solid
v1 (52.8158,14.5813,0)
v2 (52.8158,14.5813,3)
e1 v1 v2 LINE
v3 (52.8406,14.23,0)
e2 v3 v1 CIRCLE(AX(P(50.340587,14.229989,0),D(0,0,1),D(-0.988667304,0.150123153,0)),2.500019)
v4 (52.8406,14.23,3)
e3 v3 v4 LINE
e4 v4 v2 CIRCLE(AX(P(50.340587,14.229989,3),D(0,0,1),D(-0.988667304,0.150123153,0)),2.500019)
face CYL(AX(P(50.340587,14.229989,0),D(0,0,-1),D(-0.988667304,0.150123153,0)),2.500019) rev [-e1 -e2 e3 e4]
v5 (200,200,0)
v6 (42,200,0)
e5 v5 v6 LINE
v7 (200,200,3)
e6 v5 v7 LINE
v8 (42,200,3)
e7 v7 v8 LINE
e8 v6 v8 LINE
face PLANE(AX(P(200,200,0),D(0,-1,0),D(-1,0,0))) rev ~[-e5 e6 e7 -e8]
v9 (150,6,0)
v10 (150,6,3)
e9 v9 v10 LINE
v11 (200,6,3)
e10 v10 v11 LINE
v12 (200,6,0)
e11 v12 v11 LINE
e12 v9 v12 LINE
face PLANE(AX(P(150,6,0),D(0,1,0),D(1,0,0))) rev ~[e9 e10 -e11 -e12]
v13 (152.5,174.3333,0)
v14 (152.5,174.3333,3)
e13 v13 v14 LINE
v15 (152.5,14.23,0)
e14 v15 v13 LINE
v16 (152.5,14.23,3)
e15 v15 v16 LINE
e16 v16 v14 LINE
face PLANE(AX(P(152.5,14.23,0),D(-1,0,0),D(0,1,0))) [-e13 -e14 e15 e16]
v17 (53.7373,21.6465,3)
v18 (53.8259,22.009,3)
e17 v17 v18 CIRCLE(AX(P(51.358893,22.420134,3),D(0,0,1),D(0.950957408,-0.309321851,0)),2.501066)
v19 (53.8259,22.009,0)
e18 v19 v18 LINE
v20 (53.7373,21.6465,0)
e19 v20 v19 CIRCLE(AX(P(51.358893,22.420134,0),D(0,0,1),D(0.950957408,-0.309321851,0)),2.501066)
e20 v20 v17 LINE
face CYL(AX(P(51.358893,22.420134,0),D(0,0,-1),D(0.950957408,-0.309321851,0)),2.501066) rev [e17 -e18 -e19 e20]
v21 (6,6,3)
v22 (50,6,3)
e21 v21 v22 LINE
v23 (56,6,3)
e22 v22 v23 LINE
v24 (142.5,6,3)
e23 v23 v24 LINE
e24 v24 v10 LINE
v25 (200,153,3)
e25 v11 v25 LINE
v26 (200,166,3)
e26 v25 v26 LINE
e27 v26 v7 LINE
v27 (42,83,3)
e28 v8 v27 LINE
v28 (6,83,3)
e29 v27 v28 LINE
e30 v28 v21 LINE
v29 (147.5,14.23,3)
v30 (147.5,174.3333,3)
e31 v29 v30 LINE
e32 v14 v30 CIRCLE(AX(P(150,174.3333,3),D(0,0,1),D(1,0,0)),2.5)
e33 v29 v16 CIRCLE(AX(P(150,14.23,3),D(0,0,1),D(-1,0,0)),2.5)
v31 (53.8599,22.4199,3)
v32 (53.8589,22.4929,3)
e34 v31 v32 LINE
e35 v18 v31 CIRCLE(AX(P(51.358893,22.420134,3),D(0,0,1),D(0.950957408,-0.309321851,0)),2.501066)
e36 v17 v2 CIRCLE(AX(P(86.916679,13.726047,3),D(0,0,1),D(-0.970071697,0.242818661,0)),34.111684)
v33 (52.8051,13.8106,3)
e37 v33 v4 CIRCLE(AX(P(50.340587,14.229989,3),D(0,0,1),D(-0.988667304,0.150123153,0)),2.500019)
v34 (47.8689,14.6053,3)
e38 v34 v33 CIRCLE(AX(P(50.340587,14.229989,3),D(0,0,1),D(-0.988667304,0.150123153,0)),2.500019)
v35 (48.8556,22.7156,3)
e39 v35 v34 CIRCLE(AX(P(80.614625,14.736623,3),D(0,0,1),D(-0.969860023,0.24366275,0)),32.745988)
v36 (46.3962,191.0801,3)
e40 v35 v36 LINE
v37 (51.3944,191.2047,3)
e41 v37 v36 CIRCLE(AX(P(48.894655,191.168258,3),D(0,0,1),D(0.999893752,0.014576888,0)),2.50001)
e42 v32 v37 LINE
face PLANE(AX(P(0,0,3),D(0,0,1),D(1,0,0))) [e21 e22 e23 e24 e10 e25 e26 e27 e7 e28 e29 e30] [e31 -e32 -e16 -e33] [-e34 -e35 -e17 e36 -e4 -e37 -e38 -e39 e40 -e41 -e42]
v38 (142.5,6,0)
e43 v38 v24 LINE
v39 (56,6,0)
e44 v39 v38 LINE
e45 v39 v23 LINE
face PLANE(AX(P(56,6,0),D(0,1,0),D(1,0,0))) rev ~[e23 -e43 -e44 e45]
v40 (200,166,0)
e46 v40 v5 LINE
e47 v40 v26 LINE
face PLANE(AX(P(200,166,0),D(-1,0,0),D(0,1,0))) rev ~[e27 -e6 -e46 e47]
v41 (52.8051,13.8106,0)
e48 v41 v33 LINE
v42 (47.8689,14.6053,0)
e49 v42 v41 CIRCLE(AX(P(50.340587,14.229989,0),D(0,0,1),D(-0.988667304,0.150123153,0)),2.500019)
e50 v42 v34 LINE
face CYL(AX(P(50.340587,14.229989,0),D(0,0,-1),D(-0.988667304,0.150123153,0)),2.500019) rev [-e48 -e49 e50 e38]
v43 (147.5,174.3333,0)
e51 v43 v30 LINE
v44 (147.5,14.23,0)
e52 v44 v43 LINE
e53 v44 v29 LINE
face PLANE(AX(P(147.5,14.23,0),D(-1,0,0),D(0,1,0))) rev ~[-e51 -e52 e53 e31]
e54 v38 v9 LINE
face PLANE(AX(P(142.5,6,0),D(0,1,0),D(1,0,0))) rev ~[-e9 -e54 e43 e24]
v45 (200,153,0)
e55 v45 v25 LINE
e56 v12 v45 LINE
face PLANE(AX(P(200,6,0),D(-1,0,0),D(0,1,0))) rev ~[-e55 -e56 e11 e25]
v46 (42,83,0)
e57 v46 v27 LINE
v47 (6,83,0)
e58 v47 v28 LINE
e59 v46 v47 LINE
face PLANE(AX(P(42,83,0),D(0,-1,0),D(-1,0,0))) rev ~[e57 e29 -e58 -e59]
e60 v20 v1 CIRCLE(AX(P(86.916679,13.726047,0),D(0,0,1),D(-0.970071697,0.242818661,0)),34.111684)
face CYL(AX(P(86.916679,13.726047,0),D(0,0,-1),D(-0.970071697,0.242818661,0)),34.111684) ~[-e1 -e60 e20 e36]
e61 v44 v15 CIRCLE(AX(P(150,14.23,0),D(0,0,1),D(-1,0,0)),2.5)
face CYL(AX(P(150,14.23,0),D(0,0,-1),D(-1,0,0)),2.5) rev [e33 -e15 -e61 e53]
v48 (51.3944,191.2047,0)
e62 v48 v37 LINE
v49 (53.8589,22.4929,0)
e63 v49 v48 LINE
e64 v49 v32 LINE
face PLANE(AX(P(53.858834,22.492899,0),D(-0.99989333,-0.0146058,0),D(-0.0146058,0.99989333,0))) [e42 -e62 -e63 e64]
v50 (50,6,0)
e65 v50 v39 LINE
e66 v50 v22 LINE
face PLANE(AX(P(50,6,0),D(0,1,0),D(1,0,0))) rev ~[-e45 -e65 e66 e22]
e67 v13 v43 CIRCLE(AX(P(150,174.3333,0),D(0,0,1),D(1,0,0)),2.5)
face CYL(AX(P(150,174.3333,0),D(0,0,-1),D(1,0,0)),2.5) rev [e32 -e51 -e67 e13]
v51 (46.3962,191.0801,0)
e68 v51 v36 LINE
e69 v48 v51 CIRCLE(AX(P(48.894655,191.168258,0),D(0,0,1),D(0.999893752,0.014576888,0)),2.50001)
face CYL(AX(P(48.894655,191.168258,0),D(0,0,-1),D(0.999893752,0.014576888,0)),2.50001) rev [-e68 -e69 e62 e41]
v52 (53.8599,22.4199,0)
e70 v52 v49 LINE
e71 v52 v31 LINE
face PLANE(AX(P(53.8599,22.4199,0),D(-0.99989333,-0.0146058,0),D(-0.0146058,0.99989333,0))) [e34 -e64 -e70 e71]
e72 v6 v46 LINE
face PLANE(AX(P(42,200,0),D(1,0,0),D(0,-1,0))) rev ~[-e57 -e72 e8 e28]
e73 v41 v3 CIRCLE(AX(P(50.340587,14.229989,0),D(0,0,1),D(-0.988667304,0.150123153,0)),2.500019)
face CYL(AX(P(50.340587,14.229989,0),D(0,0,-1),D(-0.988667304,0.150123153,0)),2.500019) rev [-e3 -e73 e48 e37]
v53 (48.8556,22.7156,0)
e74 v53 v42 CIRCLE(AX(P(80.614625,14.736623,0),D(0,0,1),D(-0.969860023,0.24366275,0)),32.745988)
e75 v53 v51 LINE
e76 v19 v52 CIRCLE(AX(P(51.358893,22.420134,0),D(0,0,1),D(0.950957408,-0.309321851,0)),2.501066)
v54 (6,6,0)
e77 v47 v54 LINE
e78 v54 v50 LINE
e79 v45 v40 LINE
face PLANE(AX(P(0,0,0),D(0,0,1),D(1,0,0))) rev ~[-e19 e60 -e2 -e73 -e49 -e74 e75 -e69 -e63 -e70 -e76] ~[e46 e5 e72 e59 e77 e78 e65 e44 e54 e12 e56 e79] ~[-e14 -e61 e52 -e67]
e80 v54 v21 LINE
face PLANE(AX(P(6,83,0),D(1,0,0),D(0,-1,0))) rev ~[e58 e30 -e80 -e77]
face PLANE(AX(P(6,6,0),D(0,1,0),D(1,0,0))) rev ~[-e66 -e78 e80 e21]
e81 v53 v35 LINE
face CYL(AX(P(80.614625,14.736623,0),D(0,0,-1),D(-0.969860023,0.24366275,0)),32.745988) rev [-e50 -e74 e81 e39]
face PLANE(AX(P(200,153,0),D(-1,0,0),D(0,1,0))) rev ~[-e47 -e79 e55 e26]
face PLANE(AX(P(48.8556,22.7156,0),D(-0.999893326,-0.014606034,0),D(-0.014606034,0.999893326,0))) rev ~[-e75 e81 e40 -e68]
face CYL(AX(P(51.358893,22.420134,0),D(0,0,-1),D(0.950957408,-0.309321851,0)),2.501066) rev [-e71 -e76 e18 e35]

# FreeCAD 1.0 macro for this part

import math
import FreeCAD as App
import Part
import Sketcher

V = App.Vector
Q = App.Units.Quantity

doc = App.newDocument("Part")
params = doc.addObject("Spreadsheet::Sheet", "Params")
for row, (alias, value) in enumerate([
    ("sketch1_width", "194 mm"),
    ("sketch1_radius", "2.5 mm"),
    ("sketch1_width2", "158 mm"),
    ("sketch1_height", "77 mm"),
    ("pad1_length", "3 mm"),
], start=1):
    params.set(f"A{row}", alias)
    params.set(f"B{row}", "=" + value)
    params.setAlias(f"B{row}", alias)

body = doc.addObject("PartDesign::Body", "Body")

sketch1 = body.newObject("Sketcher::SketchObject", "Sketch")
sketch1.AttachmentSupport = (doc.getObject("XY_Plane"), [""])
sketch1.MapMode = "FlatFace"
sketch1.addGeometry([
    Part.LineSegment(V(6, 83, 0), V(6, 6, 0)),
    Part.LineSegment(V(6, 6, 0), V(200, 6, 0)),
    Part.LineSegment(V(200, 6, 0), V(200, 200, 0)),
    Part.LineSegment(V(200, 200, 0), V(42, 200, 0)),
    Part.LineSegment(V(42, 200, 0), V(42, 83, 0)),
    Part.LineSegment(V(42, 83, 0), V(6, 83, 0)),
    Part.ArcOfCircle(Part.Circle(V(50.3, 14.2, 0), V(0, 0, 1), 2.5), math.radians(171), math.radians(368)),
    Part.ArcOfCircle(Part.Circle(V(80.6, 14.7, 0), V(0, 0, 1), 32.7), math.radians(165.9), math.radians(180.23)),
    Part.LineSegment(V(48.9, 22.7, 0), V(46.4, 191.1, 0)),
    Part.ArcOfCircle(Part.Circle(V(48.9, 191.2, 0), V(0, 0, 1), 2.5), math.radians(1), math.radians(182)),
    Part.LineSegment(V(51.4, 191.2, 0), V(53.9, 22.4, 0)),
    Part.ArcOfCircle(Part.Circle(V(51.4, 22.4, 0), V(0, 0, 1), 2.5), math.radians(-18.02), math.radians(-0.01)),
    Part.ArcOfCircle(Part.Circle(V(86.9, 13.7, 0), V(0, 0, 1), 34.1), math.radians(166.57), math.radians(178.56)),
    Part.ArcOfCircle(Part.Circle(V(150, 174.3, 0), V(0, 0, 1), 2.5), math.radians(0), math.radians(180)),
    Part.LineSegment(V(152.5, 174.3, 0), V(152.5, 14.2, 0)),
    Part.ArcOfCircle(Part.Circle(V(150, 14.2, 0), V(0, 0, 1), 2.5), math.radians(180), math.radians(360)),
    Part.LineSegment(V(147.5, 14.2, 0), V(147.5, 174.3, 0)),
], False)
sketch1.addConstraint([
    Sketcher.Constraint("Coincident", 0, 2, 1, 1),
    Sketcher.Constraint("Coincident", 1, 2, 2, 1),
    Sketcher.Constraint("Coincident", 2, 2, 3, 1),
    Sketcher.Constraint("Coincident", 3, 2, 4, 1),
    Sketcher.Constraint("Coincident", 4, 2, 5, 1),
    Sketcher.Constraint("Coincident", 5, 2, 0, 1),
    Sketcher.Constraint("Coincident", 6, 1, 7, 2),
    Sketcher.Constraint("Coincident", 7, 1, 8, 1),
    Sketcher.Constraint("Coincident", 8, 2, 9, 2),
    Sketcher.Constraint("Tangent", 9, 1, 10, 1),
    Sketcher.Constraint("Coincident", 10, 2, 11, 2),
    Sketcher.Constraint("Coincident", 11, 1, 12, 1),
    Sketcher.Constraint("Coincident", 12, 2, 6, 2),
    Sketcher.Constraint("Tangent", 13, 1, 14, 1),
    Sketcher.Constraint("Tangent", 14, 2, 15, 2),
    Sketcher.Constraint("Tangent", 15, 1, 16, 1),
    Sketcher.Constraint("Tangent", 16, 2, 13, 2),
    Sketcher.Constraint("Vertical", 0),
    Sketcher.Constraint("Horizontal", 1),
    Sketcher.Constraint("Vertical", 2),
    Sketcher.Constraint("Horizontal", 3),
    Sketcher.Constraint("Vertical", 4),
    Sketcher.Constraint("Horizontal", 5),
    Sketcher.Constraint("Vertical", 14),
    Sketcher.Constraint("Vertical", 16),
    Sketcher.Constraint("Equal", 6, 9),
    Sketcher.Constraint("Equal", 9, 13),
    Sketcher.Constraint("Parallel", 8, 10),
    Sketcher.Constraint("Horizontal", 6, 3, 15, 3),
    Sketcher.Constraint("Equal", 1, 2),
    Sketcher.Constraint("DistanceX", 1, 1, 1, 2, Q("194 mm")),
    Sketcher.Constraint("Radius", 6, Q("2.5 mm")),
    Sketcher.Constraint("DistanceX", 3, 2, 3, 1, Q("158 mm")),
    Sketcher.Constraint("DistanceY", 0, 2, 0, 1, Q("77 mm")),
    Sketcher.Constraint("DistanceX", -1, 1, 13, 3, Q("150 mm")),
    Sketcher.Constraint("DistanceX", -1, 1, 0, 2, Q("6 mm")),
    Sketcher.Constraint("DistanceY", -1, 1, 0, 2, Q("6 mm")),
    Sketcher.Constraint("Radius", 7, Q("32.746 mm")),
    Sketcher.Constraint("Radius", 11, Q("2.501 mm")),
    Sketcher.Constraint("Radius", 12, Q("34.1117 mm")),
    Sketcher.Constraint("DistanceY", -1, 1, 6, 3, Q("14.23 mm")),
    Sketcher.Constraint("DistanceY", -1, 1, 8, 2, Q("191.08 mm")),
    Sketcher.Constraint("DistanceX", -1, 1, 10, 2, Q("53.86 mm")),
    Sketcher.Constraint("DistanceY", -1, 1, 10, 2, Q("22.42 mm")),
    Sketcher.Constraint("DistanceX", 9, 3, 7, 3, Q("31.72 mm")),
    Sketcher.Constraint("DistanceX", 6, 1, 11, 3, Q("3.49 mm")),
    Sketcher.Constraint("DistanceY", 14, 2, 14, 1, Q("160.1033 mm")),
    Sketcher.Constraint("DistanceY", -1, 1, 12, 3, Q("13.726 mm")),
    Sketcher.Constraint("DistanceX", 6, 3, 7, 3, Q("30.274 mm")),
    Sketcher.Constraint("DistanceY", 11, 3, 9, 3, Q("168.748 mm")),
    Sketcher.Constraint("DistanceX", 7, 3, 12, 3, Q("6.302 mm")),
    Sketcher.Constraint("DistanceY", 12, 3, 11, 3, Q("8.694 mm")),
    Sketcher.Constraint("DistanceY", 11, 1, 7, 1, Q("1.069 mm")),
])
sketch1.setExpression("Constraints[30]", "Params.sketch1_width")
sketch1.setExpression("Constraints[31]", "Params.sketch1_radius")
sketch1.setExpression("Constraints[32]", "Params.sketch1_width2")
sketch1.setExpression("Constraints[33]", "Params.sketch1_height")
pad1 = body.newObject("PartDesign::Pad", "Pad")
pad1.Profile = sketch1
pad1.setExpression("Length", "Params.pad1_length")

doc.recompute()
